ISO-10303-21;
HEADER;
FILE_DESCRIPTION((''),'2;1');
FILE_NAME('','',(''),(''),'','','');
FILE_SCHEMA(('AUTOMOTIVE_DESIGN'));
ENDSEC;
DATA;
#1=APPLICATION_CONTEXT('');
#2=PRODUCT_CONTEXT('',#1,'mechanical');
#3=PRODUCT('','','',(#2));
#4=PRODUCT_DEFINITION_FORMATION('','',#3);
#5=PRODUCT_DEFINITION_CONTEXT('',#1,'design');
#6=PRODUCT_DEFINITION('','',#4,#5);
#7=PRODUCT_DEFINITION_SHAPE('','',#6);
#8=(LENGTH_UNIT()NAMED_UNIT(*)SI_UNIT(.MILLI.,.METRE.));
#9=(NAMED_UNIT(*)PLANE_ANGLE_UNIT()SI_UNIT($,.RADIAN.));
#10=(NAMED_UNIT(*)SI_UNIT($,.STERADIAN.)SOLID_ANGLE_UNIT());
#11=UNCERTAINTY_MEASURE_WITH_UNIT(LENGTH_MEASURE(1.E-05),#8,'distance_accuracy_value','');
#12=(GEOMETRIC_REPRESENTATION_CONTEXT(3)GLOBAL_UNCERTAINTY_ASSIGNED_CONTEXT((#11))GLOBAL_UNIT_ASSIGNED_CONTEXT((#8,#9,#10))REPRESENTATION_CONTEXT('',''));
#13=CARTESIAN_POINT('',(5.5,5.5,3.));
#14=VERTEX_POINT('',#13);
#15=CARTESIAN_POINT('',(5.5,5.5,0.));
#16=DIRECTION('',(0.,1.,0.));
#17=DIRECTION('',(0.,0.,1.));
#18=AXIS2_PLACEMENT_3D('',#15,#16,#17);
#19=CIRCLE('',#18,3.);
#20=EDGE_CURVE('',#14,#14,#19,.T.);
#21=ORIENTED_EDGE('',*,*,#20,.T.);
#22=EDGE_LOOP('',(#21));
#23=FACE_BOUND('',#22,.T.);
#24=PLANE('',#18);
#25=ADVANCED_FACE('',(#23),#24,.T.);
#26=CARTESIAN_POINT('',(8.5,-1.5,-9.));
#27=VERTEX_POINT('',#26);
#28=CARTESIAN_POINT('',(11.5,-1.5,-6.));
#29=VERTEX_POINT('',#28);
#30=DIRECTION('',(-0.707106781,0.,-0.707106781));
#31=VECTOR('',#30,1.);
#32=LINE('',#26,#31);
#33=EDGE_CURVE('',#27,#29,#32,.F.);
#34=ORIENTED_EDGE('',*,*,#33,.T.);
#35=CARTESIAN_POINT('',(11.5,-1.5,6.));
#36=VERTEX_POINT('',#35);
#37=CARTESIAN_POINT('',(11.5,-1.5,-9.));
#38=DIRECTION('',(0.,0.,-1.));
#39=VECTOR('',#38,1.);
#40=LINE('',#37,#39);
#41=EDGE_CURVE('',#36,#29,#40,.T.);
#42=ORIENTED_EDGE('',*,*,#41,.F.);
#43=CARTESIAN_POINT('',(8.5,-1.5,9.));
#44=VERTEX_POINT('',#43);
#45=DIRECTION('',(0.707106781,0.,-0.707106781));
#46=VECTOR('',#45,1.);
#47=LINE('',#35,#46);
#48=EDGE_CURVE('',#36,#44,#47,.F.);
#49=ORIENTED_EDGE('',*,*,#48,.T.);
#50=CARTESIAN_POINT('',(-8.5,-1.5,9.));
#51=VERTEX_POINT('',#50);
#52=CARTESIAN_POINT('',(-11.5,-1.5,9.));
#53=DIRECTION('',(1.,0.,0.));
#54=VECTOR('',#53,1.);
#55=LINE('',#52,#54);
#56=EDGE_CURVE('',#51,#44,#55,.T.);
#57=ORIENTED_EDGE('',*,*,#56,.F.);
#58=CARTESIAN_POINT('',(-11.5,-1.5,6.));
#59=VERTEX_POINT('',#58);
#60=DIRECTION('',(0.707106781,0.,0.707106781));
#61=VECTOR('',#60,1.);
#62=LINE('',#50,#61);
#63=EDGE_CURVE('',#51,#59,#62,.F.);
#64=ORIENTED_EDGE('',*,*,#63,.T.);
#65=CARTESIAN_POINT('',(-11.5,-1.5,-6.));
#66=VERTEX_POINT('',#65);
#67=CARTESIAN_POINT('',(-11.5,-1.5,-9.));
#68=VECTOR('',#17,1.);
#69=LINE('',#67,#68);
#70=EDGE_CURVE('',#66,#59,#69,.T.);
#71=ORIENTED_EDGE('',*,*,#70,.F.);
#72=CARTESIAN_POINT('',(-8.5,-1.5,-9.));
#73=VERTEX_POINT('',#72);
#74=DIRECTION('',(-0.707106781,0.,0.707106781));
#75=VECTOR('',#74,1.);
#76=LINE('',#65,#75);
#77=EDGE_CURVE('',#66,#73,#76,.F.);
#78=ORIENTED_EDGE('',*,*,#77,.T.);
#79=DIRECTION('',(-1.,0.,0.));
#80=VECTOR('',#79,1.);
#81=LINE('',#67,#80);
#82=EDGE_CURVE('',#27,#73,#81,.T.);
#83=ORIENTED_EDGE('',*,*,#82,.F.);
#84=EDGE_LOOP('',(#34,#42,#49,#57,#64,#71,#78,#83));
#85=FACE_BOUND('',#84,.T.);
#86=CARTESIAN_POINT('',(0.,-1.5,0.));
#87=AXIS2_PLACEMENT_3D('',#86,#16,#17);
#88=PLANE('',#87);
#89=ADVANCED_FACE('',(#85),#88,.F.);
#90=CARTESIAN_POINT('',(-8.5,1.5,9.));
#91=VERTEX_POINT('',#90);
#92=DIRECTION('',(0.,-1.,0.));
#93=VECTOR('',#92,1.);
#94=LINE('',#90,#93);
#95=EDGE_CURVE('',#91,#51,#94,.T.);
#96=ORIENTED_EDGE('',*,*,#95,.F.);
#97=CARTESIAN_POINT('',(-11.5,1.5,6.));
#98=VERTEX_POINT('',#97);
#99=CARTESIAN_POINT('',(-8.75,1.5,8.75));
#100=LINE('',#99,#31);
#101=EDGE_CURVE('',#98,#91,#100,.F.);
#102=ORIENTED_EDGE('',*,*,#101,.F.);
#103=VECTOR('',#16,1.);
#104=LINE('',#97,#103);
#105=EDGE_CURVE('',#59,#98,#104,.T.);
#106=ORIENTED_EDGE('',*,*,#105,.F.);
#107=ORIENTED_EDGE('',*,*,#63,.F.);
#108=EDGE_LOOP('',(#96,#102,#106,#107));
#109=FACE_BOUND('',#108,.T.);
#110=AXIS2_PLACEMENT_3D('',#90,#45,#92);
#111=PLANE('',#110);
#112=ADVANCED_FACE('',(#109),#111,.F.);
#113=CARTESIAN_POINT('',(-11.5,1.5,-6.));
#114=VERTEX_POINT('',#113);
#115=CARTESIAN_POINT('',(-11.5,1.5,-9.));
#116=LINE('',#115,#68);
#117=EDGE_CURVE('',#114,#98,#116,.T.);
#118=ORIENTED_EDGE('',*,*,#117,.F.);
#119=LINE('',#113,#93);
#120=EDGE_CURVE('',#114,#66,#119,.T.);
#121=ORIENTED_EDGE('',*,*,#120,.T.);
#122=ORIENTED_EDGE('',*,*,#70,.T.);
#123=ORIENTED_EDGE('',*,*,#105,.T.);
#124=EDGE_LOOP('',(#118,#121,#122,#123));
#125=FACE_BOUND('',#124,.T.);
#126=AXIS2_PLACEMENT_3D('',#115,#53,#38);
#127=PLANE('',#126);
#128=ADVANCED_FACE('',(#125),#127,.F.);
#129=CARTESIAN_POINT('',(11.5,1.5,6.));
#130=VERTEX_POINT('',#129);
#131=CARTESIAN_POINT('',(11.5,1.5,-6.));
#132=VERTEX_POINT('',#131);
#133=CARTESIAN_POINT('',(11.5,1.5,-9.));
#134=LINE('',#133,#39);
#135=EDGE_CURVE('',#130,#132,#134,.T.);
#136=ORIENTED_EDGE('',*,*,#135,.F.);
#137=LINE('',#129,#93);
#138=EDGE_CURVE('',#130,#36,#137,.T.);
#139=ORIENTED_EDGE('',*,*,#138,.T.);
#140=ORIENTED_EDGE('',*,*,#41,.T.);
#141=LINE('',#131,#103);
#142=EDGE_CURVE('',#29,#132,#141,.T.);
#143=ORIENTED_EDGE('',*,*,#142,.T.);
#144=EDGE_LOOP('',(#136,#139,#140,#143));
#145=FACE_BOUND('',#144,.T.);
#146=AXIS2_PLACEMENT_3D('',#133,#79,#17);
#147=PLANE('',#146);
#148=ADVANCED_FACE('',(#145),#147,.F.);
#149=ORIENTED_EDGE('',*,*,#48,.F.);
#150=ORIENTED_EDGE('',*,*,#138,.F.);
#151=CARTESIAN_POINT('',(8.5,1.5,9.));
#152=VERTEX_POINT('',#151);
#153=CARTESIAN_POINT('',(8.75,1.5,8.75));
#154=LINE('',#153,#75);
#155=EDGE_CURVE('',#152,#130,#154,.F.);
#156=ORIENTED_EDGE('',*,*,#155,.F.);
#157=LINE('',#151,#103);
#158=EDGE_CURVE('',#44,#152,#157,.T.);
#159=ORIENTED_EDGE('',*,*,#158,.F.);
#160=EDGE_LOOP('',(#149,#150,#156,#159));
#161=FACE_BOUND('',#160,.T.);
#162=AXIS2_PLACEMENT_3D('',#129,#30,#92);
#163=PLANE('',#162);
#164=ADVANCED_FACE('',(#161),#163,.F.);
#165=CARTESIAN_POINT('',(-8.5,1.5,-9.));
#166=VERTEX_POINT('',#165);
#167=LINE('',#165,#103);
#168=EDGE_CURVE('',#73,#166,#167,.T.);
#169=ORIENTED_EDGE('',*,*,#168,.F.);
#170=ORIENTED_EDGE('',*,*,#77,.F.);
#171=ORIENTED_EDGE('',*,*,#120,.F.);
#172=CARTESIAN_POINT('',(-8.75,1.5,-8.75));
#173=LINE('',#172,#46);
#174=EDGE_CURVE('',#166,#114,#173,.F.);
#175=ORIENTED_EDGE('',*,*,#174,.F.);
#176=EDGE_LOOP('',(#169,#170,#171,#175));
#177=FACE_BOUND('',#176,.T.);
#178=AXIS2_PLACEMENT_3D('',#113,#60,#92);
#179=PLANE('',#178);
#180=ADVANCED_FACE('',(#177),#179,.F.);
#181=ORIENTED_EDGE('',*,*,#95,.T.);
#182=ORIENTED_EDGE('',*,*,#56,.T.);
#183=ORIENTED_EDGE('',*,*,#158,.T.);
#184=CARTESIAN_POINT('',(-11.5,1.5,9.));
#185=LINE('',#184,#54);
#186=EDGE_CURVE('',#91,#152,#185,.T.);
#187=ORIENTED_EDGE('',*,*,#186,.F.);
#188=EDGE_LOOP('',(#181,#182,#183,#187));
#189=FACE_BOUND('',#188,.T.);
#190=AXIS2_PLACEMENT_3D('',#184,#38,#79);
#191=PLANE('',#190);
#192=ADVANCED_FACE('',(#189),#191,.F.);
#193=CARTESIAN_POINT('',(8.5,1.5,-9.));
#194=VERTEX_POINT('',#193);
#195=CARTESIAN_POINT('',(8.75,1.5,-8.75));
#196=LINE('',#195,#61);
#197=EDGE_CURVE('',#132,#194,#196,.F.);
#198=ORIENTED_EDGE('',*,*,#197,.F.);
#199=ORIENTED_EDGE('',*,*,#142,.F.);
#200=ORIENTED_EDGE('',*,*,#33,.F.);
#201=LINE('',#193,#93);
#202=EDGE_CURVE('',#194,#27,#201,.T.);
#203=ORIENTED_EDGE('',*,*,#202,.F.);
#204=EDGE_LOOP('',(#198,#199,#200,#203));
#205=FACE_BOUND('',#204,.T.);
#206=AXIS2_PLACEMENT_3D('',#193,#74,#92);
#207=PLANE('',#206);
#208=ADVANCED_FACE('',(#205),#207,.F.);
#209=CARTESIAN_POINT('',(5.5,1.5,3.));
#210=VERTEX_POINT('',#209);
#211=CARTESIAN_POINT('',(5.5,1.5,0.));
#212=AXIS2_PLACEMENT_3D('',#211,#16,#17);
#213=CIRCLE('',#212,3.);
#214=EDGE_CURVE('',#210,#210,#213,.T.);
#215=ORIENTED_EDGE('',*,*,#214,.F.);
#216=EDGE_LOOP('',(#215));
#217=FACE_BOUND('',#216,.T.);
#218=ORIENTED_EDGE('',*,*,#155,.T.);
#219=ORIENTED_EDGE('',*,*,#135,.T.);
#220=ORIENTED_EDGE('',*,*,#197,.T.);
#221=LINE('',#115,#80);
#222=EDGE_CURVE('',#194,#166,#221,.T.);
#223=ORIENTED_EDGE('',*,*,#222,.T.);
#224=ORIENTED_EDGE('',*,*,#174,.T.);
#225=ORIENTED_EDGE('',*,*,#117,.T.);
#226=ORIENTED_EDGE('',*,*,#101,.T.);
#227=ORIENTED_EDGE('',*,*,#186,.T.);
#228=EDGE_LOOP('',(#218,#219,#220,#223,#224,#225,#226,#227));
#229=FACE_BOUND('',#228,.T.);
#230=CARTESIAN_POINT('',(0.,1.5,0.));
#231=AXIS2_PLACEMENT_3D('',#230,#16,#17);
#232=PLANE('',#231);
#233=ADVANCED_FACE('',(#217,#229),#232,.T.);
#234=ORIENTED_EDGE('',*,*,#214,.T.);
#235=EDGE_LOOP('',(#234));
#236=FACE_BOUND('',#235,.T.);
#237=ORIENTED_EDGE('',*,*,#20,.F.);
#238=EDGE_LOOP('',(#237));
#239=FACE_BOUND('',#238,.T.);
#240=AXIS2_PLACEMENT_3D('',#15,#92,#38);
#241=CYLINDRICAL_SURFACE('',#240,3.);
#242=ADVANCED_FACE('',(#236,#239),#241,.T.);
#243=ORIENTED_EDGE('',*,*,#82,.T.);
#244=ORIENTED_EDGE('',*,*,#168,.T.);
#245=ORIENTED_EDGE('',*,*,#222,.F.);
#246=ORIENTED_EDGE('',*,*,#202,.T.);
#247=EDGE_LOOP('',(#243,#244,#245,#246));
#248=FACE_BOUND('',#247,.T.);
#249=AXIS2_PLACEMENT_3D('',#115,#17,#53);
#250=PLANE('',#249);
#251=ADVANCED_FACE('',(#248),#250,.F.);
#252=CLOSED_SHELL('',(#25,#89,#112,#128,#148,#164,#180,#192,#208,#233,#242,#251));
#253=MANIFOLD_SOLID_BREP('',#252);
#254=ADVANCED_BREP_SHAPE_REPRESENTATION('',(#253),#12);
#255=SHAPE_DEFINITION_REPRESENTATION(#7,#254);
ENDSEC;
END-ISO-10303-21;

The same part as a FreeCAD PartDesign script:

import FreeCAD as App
import Part
import Sketcher

V = App.Vector


def edges_at(feature, points):
    """Names of the edges that pass closest to the given points."""
    edges = feature.Shape.Edges
    near = lambda p: min(range(len(edges)), key=lambda i: edges[i].distToShape(Part.Vertex(*p))[0])
    return sorted({f"Edge{near(p) + 1}" for p in points})


def add_polygon(sketch, points):
    """Adds a closed chain of lines whose ends are joined by coincident constraints."""
    first, n = sketch.GeometryCount, len(points)
    for a, b in zip(points, points[1:] + points[:1]):
        sketch.addGeometry(Part.LineSegment(App.Vector(*a, 0), App.Vector(*b, 0)), False)
    for i in range(n):
        sketch.addConstraint(Sketcher.Constraint("Coincident", first + i, 2, first + (i + 1) % n, 1))

doc = App.newDocument("Part")
body = doc.addObject("PartDesign::Body", "Body")

# Sketch on XZ plane
sketch1 = body.newObject("Sketcher::SketchObject", "Sketch")
sketch1.AttachmentSupport = (doc.getObject("XZ_Plane"), [""])
sketch1.MapMode = "FlatFace"
add_polygon(sketch1, [(-12, -9), (-12, 9), (12, 9), (12, -9)])  # lines 0-3
sketch1.addConstraint(Sketcher.Constraint("Vertical", 0))
sketch1.addConstraint(Sketcher.Constraint("Horizontal", 1))
sketch1.addConstraint(Sketcher.Constraint("Vertical", 2))
sketch1.addConstraint(Sketcher.Constraint("Horizontal", 3))
sketch1.addConstraint(Sketcher.Constraint("Symmetric", 0, 2, 2, 2, -1, 1))
sketch1.addConstraint(Sketcher.Constraint("DistanceX", 1, 1, 1, 2, 23.0))
sketch1.addConstraint(Sketcher.Constraint("DistanceY", 0, 1, 0, 2, 18.0))
pad1 = body.newObject("PartDesign::Pad", "Pad")
pad1.Profile = sketch1
pad1.Length = 3
pad1.Midplane = True
doc.recompute()

chamfer = body.newObject("PartDesign::Chamfer", "Chamfer")
chamfer.Base = (pad1, edges_at(pad1, [
    (11.5, 0, 9),
    (-11.5, 0, 9),
    (-11.5, 0, -9),
    (11.5, 0, -9),
]))
chamfer.Size = 3

# Sketch on XZ plane
sketch2 = body.newObject("Sketcher::SketchObject", "Sketch001")
sketch2.AttachmentSupport = (doc.getObject("XZ_Plane"), [""])
sketch2.MapMode = "FlatFace"
sketch2.AttachmentOffset = App.Placement(V(0, 0, -1.5), App.Rotation())
sketch2.addGeometry(Part.Circle(V(5.5, 0, 0), V(0, 0, 1), 3), False)
sketch2.addConstraint(Sketcher.Constraint("PointOnObject", 0, 3, -1))
sketch2.addConstraint(Sketcher.Constraint("Diameter", 0, 6.0))
sketch2.addConstraint(Sketcher.Constraint("DistanceX", -1, 1, 0, 3, 5.5))
pad2 = body.newObject("PartDesign::Pad", "Pad001")
pad2.Profile = sketch2
pad2.Length = 4
pad2.Reversed = True

doc.recompute()
